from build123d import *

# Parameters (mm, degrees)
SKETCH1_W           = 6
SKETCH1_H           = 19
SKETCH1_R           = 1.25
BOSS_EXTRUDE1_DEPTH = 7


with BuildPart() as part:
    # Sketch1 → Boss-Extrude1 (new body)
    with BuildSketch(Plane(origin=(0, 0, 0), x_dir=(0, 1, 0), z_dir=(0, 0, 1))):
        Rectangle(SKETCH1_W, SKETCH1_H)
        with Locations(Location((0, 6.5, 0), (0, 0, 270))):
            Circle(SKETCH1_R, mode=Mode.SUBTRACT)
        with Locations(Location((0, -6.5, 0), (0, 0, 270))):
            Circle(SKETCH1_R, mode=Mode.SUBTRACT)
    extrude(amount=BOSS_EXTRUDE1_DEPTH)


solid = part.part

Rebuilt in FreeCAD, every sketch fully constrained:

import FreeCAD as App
import Part
import Sketcher

V = App.Vector
Q = App.Units.Quantity

doc = App.newDocument("Part")
body = doc.addObject("PartDesign::Body", "Body")

sketch1 = body.newObject("Sketcher::SketchObject", "Sketch")
sketch1.AttachmentSupport = (doc.getObject("XY_Plane"), [""])
sketch1.MapMode = "FlatFace"
sketch1.addGeometry(Part.LineSegment(V(-9.5, -3, 0), V(9.5, -3, 0)), False)
sketch1.addGeometry(Part.LineSegment(V(9.5, -3, 0), V(9.5, 3, 0)), False)
sketch1.addGeometry(Part.LineSegment(V(9.5, 3, 0), V(-9.5, 3, 0)), False)
sketch1.addGeometry(Part.LineSegment(V(-9.5, 3, 0), V(-9.5, -3, 0)), False)
sketch1.addGeometry(Part.Circle(V(6.5, 0, 0), V(0, 0, 1), 1.2), False)
sketch1.addGeometry(Part.Circle(V(-6.5, 0, 0), V(0, 0, 1), 1.2), False)
sketch1.addConstraint(Sketcher.Constraint("Coincident", 0, 2, 1, 1))
sketch1.addConstraint(Sketcher.Constraint("Coincident", 1, 2, 2, 1))
sketch1.addConstraint(Sketcher.Constraint("Coincident", 2, 2, 3, 1))
sketch1.addConstraint(Sketcher.Constraint("Coincident", 3, 2, 0, 1))
sketch1.addConstraint(Sketcher.Constraint("Horizontal", 0))
sketch1.addConstraint(Sketcher.Constraint("Vertical", 1))
sketch1.addConstraint(Sketcher.Constraint("Horizontal", 2))
sketch1.addConstraint(Sketcher.Constraint("Vertical", 3))
sketch1.addConstraint(Sketcher.Constraint("Equal", 4, 5))
sketch1.addConstraint(Sketcher.Constraint("Symmetric", 4, 3, 5, 3, -1, 1))
sketch1.addConstraint(Sketcher.Constraint("Symmetric", 0, 2, 2, 2, -1, 1))
sketch1.addConstraint(Sketcher.Constraint("PointOnObject", 4, 3, -1))
sketch1.addConstraint(Sketcher.Constraint("Diameter", 4, Q("2.5 mm")))
sketch1.addConstraint(Sketcher.Constraint("DistanceX", 0, 1, 0, 2, Q("19 mm")))
sketch1.addConstraint(Sketcher.Constraint("DistanceY", 1, 1, 1, 2, Q("6 mm")))
sketch1.addConstraint(Sketcher.Constraint("DistanceX", 5, 3, 4, 3, Q("13 mm")))
pad1 = body.newObject("PartDesign::Pad", "Pad")
pad1.Profile = sketch1
pad1.Length = 7

doc.recompute()
